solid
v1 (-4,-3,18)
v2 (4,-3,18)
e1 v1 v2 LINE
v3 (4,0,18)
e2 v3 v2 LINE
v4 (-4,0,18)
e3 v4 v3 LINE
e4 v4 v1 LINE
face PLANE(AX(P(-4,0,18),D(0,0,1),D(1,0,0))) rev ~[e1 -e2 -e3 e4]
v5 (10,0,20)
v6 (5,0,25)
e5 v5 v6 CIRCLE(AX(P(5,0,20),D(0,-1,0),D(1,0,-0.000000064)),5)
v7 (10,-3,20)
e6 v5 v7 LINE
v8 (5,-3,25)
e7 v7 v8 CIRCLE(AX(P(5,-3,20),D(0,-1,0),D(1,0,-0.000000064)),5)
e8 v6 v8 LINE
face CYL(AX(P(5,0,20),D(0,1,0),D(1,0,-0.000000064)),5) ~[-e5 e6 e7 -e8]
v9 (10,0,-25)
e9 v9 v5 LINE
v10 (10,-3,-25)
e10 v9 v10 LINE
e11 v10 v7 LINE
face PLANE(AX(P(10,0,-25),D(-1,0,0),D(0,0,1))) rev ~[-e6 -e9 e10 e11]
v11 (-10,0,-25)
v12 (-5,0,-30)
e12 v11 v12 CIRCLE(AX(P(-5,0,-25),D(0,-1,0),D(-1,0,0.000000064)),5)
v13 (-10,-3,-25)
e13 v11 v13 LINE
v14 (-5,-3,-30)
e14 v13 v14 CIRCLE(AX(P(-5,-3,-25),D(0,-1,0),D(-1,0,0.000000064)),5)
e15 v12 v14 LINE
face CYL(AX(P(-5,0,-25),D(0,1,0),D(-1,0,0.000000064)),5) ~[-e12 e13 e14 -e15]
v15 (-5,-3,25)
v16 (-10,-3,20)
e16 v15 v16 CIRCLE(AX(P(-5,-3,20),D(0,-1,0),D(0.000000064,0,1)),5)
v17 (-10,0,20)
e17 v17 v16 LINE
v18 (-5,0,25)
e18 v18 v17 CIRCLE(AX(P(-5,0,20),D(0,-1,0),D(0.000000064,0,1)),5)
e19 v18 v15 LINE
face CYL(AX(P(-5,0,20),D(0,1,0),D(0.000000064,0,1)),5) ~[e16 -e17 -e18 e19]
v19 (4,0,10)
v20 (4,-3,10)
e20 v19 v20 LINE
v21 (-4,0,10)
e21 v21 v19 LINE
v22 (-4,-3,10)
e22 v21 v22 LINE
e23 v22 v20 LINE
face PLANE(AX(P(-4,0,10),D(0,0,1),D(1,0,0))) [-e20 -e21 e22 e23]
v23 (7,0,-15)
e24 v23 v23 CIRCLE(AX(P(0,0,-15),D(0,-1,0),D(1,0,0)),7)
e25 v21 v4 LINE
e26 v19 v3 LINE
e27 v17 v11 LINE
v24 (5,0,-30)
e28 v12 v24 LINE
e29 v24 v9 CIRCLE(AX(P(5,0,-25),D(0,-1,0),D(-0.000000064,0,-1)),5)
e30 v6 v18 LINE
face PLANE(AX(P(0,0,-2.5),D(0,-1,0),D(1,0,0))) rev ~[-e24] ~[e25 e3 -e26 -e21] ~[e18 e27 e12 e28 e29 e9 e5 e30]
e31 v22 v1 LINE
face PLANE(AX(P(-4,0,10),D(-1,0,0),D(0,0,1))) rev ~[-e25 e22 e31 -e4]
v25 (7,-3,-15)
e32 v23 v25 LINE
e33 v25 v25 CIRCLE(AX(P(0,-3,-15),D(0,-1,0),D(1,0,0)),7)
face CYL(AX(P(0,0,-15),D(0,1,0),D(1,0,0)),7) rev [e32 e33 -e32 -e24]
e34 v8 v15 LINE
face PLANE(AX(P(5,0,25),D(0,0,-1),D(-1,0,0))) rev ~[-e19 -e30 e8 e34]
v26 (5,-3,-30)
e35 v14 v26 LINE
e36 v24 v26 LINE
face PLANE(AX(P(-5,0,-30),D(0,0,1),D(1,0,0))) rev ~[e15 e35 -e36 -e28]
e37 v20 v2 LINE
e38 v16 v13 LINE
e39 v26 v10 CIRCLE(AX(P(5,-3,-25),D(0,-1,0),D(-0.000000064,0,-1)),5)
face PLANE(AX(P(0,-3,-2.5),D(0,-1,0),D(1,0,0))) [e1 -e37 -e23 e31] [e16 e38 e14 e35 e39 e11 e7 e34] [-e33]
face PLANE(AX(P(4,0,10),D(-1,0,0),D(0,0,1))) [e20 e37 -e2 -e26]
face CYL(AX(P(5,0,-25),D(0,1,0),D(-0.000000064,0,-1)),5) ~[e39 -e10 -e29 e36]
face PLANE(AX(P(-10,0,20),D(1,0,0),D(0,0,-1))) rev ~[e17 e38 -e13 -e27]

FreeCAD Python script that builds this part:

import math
import FreeCAD as App
import Part
import Sketcher
from FreeCAD import Vector


def add_polygon(sketch, points):
    """Adds a closed chain of lines whose ends are joined by coincident constraints."""
    first, n = sketch.GeometryCount, len(points)
    for a, b in zip(points, points[1:] + points[:1]):
        sketch.addGeometry(Part.LineSegment(App.Vector(*a, 0), App.Vector(*b, 0)), False)
    for i in range(n):
        sketch.addConstraint(Sketcher.Constraint("Coincident", first + i, 2, first + (i + 1) % n, 1))

doc = App.newDocument("Part")
body = doc.addObject("PartDesign::Body", "Body")

# Sketch on XZ plane
sketch1 = body.newObject("Sketcher::SketchObject", "Sketch")
sketch1.AttachmentSupport = (doc.getObject("XZ_Plane"), [""])
sketch1.MapMode = "FlatFace"
sketch1.addGeometry(Part.ArcOfCircle(Part.Circle(Vector(5, 20, 0), Vector(0, 0, 1), 5), math.radians(0), math.radians(90)), False)  # 0
sketch1.addGeometry(Part.LineSegment(Vector(5, 25, 0), Vector(-5, 25, 0)), False)  # 1
sketch1.addGeometry(Part.ArcOfCircle(Part.Circle(Vector(-5, 20, 0), Vector(0, 0, 1), 5), math.radians(90), math.radians(180)), False)  # 2
sketch1.addGeometry(Part.LineSegment(Vector(-10, 20, 0), Vector(-10, -25, 0)), False)  # 3
sketch1.addGeometry(Part.ArcOfCircle(Part.Circle(Vector(-5, -25, 0), Vector(0, 0, 1), 5), math.radians(180), math.radians(270)), False)  # 4
sketch1.addGeometry(Part.LineSegment(Vector(-5, -30, 0), Vector(5, -30, 0)), False)  # 5
sketch1.addGeometry(Part.ArcOfCircle(Part.Circle(Vector(5, -25, 0), Vector(0, 0, 1), 5), math.radians(-90), math.radians(0)), False)  # 6
sketch1.addGeometry(Part.LineSegment(Vector(10, -25, 0), Vector(10, 20, 0)), False)  # 7
sketch1.addGeometry(Part.Circle(Vector(0, -15, 0), Vector(0, 0, 1), 7), False)  # 8
add_polygon(sketch1, [(4, 10), (-4, 10), (-4, 18), (4, 18)])  # lines 9-12
sketch1.addConstraint([
    Sketcher.Constraint("Tangent", 0, 2, 1, 1),
    Sketcher.Constraint("Tangent", 1, 2, 2, 1),
    Sketcher.Constraint("Tangent", 2, 2, 3, 1),
    Sketcher.Constraint("Tangent", 3, 2, 4, 1),
    Sketcher.Constraint("Tangent", 4, 2, 5, 1),
    Sketcher.Constraint("Tangent", 5, 2, 6, 1),
    Sketcher.Constraint("Tangent", 6, 2, 7, 1),
    Sketcher.Constraint("Tangent", 7, 2, 0, 1),
    Sketcher.Constraint("Horizontal", 1),
    Sketcher.Constraint("Vertical", 3),
    Sketcher.Constraint("Horizontal", 5),
    Sketcher.Constraint("Vertical", 7),
    Sketcher.Constraint("Horizontal", 9),
    Sketcher.Constraint("Vertical", 10),
    Sketcher.Constraint("Horizontal", 11),
    Sketcher.Constraint("Vertical", 12),
    Sketcher.Constraint("Equal", 0, 2),
    Sketcher.Constraint("Equal", 2, 4),
    Sketcher.Constraint("Equal", 4, 6),
    Sketcher.Constraint("PointOnObject", 8, 3, -2),
    Sketcher.Constraint("Equal", 11, 10),
    Sketcher.Constraint("Diameter", 8, 14.0),
    Sketcher.Constraint("Radius", 0, 5.0),
    Sketcher.Constraint("DistanceX", 1, 2, 1, 1, 10.0),
    Sketcher.Constraint("DistanceX", 9, 2, 9, 1, 8.0),
    Sketcher.Constraint("DistanceY", 3, 2, 3, 1, 45.0),
    Sketcher.Constraint("DistanceX", -1, 1, 0, 3, 5.0),
    Sketcher.Constraint("DistanceY", -1, 1, 0, 3, 20.0),
    Sketcher.Constraint("DistanceY", 8, 3, -1, 1, 15.0),
    Sketcher.Constraint("DistanceX", 9, 2, -1, 1, 4.0),
    Sketcher.Constraint("DistanceY", -1, 1, 9, 2, 10.0),
])
pad1 = body.newObject("PartDesign::Pad", "Pad")
pad1.Profile = sketch1
pad1.Length = 3

doc.recompute()
